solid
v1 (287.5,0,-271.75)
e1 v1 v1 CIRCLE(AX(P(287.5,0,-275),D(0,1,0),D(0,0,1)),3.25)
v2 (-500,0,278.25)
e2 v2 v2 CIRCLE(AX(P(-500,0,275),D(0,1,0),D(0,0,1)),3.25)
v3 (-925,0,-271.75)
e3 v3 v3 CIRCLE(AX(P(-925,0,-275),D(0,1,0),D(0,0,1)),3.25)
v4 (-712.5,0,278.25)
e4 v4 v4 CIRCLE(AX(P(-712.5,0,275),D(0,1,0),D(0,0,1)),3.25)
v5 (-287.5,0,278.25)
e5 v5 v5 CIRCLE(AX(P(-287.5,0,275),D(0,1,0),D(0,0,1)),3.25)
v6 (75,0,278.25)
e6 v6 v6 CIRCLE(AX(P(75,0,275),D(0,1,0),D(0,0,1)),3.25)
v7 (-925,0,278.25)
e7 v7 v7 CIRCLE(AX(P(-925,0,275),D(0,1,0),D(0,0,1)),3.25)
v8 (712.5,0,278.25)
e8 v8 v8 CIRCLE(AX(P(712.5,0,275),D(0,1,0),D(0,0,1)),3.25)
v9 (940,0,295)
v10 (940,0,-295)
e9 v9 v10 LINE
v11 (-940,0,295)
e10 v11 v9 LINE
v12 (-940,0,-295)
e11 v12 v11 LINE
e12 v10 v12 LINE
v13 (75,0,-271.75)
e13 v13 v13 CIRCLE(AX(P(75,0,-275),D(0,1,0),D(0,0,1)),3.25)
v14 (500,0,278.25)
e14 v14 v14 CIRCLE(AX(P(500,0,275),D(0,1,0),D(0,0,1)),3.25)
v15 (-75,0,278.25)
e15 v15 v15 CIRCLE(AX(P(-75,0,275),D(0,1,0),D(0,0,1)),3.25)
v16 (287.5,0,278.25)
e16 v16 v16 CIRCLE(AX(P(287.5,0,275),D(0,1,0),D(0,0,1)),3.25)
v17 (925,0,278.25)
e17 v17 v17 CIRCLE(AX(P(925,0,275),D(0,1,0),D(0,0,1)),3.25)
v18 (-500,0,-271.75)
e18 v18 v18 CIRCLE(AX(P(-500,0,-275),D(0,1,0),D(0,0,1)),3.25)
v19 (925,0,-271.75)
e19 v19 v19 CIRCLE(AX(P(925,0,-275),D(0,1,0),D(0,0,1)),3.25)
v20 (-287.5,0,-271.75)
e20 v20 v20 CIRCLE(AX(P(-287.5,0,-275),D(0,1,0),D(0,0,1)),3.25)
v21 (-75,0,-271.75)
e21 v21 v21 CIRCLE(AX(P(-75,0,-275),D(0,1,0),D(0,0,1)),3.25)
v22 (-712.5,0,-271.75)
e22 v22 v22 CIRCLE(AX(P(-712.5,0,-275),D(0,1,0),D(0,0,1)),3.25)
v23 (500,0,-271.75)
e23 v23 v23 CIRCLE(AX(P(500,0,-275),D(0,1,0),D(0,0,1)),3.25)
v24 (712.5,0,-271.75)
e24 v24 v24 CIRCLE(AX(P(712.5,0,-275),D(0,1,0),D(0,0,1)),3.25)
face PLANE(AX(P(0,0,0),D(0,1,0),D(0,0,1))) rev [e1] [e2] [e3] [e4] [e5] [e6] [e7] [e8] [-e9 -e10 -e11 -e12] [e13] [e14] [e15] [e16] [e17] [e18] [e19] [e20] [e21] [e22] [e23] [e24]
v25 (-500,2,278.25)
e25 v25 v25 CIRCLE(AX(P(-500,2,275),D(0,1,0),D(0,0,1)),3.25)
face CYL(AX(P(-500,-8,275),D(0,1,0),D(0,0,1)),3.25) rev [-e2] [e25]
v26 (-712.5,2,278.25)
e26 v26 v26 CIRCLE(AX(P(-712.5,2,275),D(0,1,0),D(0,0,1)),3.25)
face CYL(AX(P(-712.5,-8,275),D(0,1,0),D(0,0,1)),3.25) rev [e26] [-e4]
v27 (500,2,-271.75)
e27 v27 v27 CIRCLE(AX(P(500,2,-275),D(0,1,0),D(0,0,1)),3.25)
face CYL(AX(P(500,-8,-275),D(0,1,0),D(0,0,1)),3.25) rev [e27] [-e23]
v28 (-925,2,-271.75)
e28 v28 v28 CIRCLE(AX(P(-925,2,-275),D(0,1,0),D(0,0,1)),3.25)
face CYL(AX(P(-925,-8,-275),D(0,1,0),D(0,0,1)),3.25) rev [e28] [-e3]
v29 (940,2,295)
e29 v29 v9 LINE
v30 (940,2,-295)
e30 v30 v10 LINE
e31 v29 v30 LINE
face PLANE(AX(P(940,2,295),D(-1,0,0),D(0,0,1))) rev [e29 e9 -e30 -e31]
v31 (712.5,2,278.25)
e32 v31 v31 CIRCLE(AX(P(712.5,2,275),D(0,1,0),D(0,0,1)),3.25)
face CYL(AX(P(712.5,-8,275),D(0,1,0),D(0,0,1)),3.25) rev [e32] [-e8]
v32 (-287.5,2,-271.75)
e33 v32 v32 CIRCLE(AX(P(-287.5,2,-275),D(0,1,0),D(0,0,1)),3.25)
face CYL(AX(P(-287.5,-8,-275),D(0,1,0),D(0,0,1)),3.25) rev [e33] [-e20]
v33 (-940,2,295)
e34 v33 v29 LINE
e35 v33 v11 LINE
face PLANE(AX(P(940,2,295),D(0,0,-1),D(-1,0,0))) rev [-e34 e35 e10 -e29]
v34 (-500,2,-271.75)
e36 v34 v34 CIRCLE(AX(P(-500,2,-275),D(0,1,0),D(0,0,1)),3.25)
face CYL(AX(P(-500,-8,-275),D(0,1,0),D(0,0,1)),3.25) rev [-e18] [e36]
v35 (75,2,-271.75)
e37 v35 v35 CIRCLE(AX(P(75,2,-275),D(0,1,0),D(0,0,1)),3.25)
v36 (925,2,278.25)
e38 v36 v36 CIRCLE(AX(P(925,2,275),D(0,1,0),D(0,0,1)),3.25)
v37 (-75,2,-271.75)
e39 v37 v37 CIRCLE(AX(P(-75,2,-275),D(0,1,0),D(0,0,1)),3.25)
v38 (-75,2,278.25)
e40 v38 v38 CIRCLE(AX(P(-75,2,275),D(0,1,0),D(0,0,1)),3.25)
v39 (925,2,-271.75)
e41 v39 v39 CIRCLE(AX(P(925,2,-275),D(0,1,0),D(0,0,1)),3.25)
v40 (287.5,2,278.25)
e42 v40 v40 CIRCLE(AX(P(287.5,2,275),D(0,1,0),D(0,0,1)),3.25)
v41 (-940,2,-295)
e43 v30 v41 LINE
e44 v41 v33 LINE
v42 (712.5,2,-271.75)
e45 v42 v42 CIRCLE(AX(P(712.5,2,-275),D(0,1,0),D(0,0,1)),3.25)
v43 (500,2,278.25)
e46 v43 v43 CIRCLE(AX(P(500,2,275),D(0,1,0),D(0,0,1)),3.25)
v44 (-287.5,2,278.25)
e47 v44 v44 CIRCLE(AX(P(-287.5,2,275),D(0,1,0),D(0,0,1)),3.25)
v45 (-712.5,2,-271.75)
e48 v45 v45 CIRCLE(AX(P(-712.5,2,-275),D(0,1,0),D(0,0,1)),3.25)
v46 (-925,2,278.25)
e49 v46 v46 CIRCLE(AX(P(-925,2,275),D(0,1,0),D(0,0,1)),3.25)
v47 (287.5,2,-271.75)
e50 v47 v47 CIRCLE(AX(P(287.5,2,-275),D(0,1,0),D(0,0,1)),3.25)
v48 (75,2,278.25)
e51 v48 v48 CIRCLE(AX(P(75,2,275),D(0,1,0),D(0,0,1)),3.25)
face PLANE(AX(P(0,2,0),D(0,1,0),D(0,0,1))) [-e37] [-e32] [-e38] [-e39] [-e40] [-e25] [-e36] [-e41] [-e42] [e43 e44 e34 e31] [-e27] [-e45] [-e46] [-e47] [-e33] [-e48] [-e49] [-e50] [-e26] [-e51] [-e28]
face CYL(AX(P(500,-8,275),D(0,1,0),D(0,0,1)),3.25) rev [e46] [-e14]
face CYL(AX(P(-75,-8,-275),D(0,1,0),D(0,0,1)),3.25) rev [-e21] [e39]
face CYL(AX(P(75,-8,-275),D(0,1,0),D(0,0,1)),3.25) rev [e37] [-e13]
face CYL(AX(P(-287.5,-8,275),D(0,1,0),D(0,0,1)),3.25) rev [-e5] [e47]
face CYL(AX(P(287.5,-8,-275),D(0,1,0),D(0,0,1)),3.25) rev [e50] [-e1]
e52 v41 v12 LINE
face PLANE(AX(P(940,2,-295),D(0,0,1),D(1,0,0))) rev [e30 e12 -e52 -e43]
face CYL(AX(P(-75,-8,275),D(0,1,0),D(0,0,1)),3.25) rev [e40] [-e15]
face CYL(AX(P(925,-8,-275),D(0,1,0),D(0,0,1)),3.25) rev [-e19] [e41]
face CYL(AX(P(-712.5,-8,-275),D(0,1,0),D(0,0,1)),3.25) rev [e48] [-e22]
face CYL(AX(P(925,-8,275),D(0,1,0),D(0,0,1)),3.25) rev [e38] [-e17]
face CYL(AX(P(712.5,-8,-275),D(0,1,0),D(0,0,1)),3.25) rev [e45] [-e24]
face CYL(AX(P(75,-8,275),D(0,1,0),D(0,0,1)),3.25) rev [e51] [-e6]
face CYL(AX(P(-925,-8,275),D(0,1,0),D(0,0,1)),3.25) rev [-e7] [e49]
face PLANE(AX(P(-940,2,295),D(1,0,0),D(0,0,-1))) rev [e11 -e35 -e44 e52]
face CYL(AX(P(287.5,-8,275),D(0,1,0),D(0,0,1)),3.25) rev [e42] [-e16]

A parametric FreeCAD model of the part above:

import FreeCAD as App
import Part
import Sketcher

V = App.Vector
Q = App.Units.Quantity

doc = App.newDocument("Part")
params = doc.addObject("Spreadsheet::Sheet", "Params")
for row, (alias, value) in enumerate([
    ("sketch1_width", "1880 mm"),
    ("sketch1_height", "590 mm"),
    ("pad1_length", "2 mm"),
    ("sketch2_diameter", "6.5 mm"),
    ("pocket1_length", "10 mm"),
], start=1):
    params.set(f"A{row}", alias)
    params.set(f"B{row}", "=" + value)
    params.setAlias(f"B{row}", alias)

body = doc.addObject("PartDesign::Body", "Body")

# Sketch on XZ plane
sketch1 = body.newObject("Sketcher::SketchObject", "Sketch")
sketch1.AttachmentSupport = (doc.getObject("XZ_Plane"), [""])
sketch1.MapMode = "FlatFace"
sketch1.addGeometry([
    Part.LineSegment(V(-940, -295, 0), V(-940, 295, 0)),
    Part.LineSegment(V(-940, 295, 0), V(940, 295, 0)),
    Part.LineSegment(V(940, 295, 0), V(940, -295, 0)),
    Part.LineSegment(V(940, -295, 0), V(-940, -295, 0)),
], False)
sketch1.addConstraint([
    Sketcher.Constraint("Coincident", 0, 2, 1, 1),
    Sketcher.Constraint("Coincident", 1, 2, 2, 1),
    Sketcher.Constraint("Coincident", 2, 2, 3, 1),
    Sketcher.Constraint("Coincident", 3, 2, 0, 1),
    Sketcher.Constraint("Vertical", 0),
    Sketcher.Constraint("Horizontal", 1),
    Sketcher.Constraint("Vertical", 2),
    Sketcher.Constraint("Horizontal", 3),
    Sketcher.Constraint("Symmetric", 0, 2, 2, 2, -1, 1),
    Sketcher.Constraint("DistanceX", 1, 1, 1, 2, Q("1880 mm")),
    Sketcher.Constraint("DistanceY", 0, 1, 0, 2, Q("590 mm")),
])
sketch1.setExpression("Constraints[9]", "Params.sketch1_width")
sketch1.setExpression("Constraints[10]", "Params.sketch1_height")
pad1 = body.newObject("PartDesign::Pad", "Pad")
pad1.Profile = sketch1
pad1.setExpression("Length", "Params.pad1_length")
pad1.Reversed = True

# Sketch on XZ plane
sketch2 = body.newObject("Sketcher::SketchObject", "Sketch001")
sketch2.AttachmentSupport = (doc.getObject("XZ_Plane"), [""])
sketch2.MapMode = "FlatFace"
sketch2.AttachmentOffset = App.Placement(V(0, 0, -2), App.Rotation())
sketch2.addGeometry([
    Part.Circle(V(-925, -275, 0), V(0, 0, 1), 3.2),  # 0
    Part.Circle(V(-925, 275, 0), V(0, 0, 1), 3.2),  # 1
    Part.Circle(V(-712.5, -275, 0), V(0, 0, 1), 3.2),  # 2
    Part.Circle(V(-712.5, 275, 0), V(0, 0, 1), 3.2),  # 3
    Part.Circle(V(-500, -275, 0), V(0, 0, 1), 3.2),  # 4
    Part.Circle(V(-500, 275, 0), V(0, 0, 1), 3.2),  # 5
    Part.Circle(V(-287.5, -275, 0), V(0, 0, 1), 3.2),  # 6
    Part.Circle(V(-287.5, 275, 0), V(0, 0, 1), 3.2),  # 7
    Part.Circle(V(-75, -275, 0), V(0, 0, 1), 3.2),  # 8
    Part.Circle(V(-75, 275, 0), V(0, 0, 1), 3.2),  # 9
    Part.Circle(V(925, -275, 0), V(0, 0, 1), 3.2),  # 10
    Part.Circle(V(925, 275, 0), V(0, 0, 1), 3.2),  # 11
    Part.Circle(V(712.5, -275, 0), V(0, 0, 1), 3.2),  # 12
    Part.Circle(V(712.5, 275, 0), V(0, 0, 1), 3.2),  # 13
    Part.Circle(V(500, -275, 0), V(0, 0, 1), 3.2),  # 14
    Part.Circle(V(500, 275, 0), V(0, 0, 1), 3.2),  # 15
    Part.Circle(V(287.5, -275, 0), V(0, 0, 1), 3.2),  # 16
    Part.Circle(V(287.5, 275, 0), V(0, 0, 1), 3.2),  # 17
    Part.Circle(V(75, -275, 0), V(0, 0, 1), 3.2),  # 18
    Part.Circle(V(75, 275, 0), V(0, 0, 1), 3.2),  # 19
], False)
sketch2.addConstraint([
    Sketcher.Constraint("Equal", 0, 1),
    Sketcher.Constraint("Equal", 1, 2),
    Sketcher.Constraint("Equal", 2, 3),
    Sketcher.Constraint("Equal", 3, 4),
    Sketcher.Constraint("Equal", 4, 5),
    Sketcher.Constraint("Equal", 5, 6),
    Sketcher.Constraint("Equal", 6, 7),
    Sketcher.Constraint("Equal", 7, 8),
    Sketcher.Constraint("Equal", 8, 9),
    Sketcher.Constraint("Equal", 9, 10),
    Sketcher.Constraint("Equal", 10, 11),
    Sketcher.Constraint("Equal", 11, 12),
    Sketcher.Constraint("Equal", 12, 13),
    Sketcher.Constraint("Equal", 13, 14),
    Sketcher.Constraint("Equal", 14, 15),
    Sketcher.Constraint("Equal", 15, 16),
    Sketcher.Constraint("Equal", 16, 17),
    Sketcher.Constraint("Equal", 17, 18),
    Sketcher.Constraint("Equal", 18, 19),
    Sketcher.Constraint("Symmetric", 1, 3, 10, 3, -1, 1),
    Sketcher.Constraint("Symmetric", 0, 3, 11, 3, -1, 1),
    Sketcher.Constraint("Symmetric", 3, 3, 12, 3, -1, 1),
    Sketcher.Constraint("Symmetric", 2, 3, 13, 3, -1, 1),
    Sketcher.Constraint("Symmetric", 5, 3, 14, 3, -1, 1),
    Sketcher.Constraint("Symmetric", 4, 3, 15, 3, -1, 1),
    Sketcher.Constraint("Symmetric", 7, 3, 16, 3, -1, 1),
    Sketcher.Constraint("Symmetric", 6, 3, 17, 3, -1, 1),
    Sketcher.Constraint("Symmetric", 9, 3, 18, 3, -1, 1),
    Sketcher.Constraint("Symmetric", 8, 3, 19, 3, -1, 1),
    Sketcher.Constraint("Symmetric", 0, 3, 10, 3, -2),
    Sketcher.Constraint("Symmetric", 2, 3, 12, 3, -2),
    Sketcher.Constraint("Symmetric", 4, 3, 14, 3, -2),
    Sketcher.Constraint("Symmetric", 6, 3, 16, 3, -2),
    Sketcher.Constraint("Symmetric", 8, 3, 18, 3, -2),
    Sketcher.Constraint("Horizontal", 0, 3, 2, 3),
    Sketcher.Constraint("Horizontal", 2, 3, 4, 3),
    Sketcher.Constraint("Horizontal", 4, 3, 6, 3),
    Sketcher.Constraint("Horizontal", 6, 3, 8, 3),
    Sketcher.Constraint("Diameter", 0, Q("6.5 mm")),
    Sketcher.Constraint("DistanceX", 0, 3, -1, 1, Q("925 mm")),
    Sketcher.Constraint("DistanceY", 0, 3, -1, 1, Q("275 mm")),
    Sketcher.Constraint("DistanceX", 4, 3, -1, 1, Q("500 mm")),
    Sketcher.Constraint("DistanceX", 8, 3, -1, 1, Q("75 mm")),
    Sketcher.Constraint("DistanceX", 2, 3, 6, 3, Q("425 mm")),
    Sketcher.Constraint("DistanceX", 6, 3, 12, 3, Q("1000 mm")),
])
sketch2.setExpression("Constraints[38]", "Params.sketch2_diameter")
pocket1 = body.newObject("PartDesign::Pocket", "Pocket")
pocket1.Profile = sketch2
pocket1.setExpression("Length", "Params.pocket1_length")
pocket1.Reversed = True

doc.recompute()
